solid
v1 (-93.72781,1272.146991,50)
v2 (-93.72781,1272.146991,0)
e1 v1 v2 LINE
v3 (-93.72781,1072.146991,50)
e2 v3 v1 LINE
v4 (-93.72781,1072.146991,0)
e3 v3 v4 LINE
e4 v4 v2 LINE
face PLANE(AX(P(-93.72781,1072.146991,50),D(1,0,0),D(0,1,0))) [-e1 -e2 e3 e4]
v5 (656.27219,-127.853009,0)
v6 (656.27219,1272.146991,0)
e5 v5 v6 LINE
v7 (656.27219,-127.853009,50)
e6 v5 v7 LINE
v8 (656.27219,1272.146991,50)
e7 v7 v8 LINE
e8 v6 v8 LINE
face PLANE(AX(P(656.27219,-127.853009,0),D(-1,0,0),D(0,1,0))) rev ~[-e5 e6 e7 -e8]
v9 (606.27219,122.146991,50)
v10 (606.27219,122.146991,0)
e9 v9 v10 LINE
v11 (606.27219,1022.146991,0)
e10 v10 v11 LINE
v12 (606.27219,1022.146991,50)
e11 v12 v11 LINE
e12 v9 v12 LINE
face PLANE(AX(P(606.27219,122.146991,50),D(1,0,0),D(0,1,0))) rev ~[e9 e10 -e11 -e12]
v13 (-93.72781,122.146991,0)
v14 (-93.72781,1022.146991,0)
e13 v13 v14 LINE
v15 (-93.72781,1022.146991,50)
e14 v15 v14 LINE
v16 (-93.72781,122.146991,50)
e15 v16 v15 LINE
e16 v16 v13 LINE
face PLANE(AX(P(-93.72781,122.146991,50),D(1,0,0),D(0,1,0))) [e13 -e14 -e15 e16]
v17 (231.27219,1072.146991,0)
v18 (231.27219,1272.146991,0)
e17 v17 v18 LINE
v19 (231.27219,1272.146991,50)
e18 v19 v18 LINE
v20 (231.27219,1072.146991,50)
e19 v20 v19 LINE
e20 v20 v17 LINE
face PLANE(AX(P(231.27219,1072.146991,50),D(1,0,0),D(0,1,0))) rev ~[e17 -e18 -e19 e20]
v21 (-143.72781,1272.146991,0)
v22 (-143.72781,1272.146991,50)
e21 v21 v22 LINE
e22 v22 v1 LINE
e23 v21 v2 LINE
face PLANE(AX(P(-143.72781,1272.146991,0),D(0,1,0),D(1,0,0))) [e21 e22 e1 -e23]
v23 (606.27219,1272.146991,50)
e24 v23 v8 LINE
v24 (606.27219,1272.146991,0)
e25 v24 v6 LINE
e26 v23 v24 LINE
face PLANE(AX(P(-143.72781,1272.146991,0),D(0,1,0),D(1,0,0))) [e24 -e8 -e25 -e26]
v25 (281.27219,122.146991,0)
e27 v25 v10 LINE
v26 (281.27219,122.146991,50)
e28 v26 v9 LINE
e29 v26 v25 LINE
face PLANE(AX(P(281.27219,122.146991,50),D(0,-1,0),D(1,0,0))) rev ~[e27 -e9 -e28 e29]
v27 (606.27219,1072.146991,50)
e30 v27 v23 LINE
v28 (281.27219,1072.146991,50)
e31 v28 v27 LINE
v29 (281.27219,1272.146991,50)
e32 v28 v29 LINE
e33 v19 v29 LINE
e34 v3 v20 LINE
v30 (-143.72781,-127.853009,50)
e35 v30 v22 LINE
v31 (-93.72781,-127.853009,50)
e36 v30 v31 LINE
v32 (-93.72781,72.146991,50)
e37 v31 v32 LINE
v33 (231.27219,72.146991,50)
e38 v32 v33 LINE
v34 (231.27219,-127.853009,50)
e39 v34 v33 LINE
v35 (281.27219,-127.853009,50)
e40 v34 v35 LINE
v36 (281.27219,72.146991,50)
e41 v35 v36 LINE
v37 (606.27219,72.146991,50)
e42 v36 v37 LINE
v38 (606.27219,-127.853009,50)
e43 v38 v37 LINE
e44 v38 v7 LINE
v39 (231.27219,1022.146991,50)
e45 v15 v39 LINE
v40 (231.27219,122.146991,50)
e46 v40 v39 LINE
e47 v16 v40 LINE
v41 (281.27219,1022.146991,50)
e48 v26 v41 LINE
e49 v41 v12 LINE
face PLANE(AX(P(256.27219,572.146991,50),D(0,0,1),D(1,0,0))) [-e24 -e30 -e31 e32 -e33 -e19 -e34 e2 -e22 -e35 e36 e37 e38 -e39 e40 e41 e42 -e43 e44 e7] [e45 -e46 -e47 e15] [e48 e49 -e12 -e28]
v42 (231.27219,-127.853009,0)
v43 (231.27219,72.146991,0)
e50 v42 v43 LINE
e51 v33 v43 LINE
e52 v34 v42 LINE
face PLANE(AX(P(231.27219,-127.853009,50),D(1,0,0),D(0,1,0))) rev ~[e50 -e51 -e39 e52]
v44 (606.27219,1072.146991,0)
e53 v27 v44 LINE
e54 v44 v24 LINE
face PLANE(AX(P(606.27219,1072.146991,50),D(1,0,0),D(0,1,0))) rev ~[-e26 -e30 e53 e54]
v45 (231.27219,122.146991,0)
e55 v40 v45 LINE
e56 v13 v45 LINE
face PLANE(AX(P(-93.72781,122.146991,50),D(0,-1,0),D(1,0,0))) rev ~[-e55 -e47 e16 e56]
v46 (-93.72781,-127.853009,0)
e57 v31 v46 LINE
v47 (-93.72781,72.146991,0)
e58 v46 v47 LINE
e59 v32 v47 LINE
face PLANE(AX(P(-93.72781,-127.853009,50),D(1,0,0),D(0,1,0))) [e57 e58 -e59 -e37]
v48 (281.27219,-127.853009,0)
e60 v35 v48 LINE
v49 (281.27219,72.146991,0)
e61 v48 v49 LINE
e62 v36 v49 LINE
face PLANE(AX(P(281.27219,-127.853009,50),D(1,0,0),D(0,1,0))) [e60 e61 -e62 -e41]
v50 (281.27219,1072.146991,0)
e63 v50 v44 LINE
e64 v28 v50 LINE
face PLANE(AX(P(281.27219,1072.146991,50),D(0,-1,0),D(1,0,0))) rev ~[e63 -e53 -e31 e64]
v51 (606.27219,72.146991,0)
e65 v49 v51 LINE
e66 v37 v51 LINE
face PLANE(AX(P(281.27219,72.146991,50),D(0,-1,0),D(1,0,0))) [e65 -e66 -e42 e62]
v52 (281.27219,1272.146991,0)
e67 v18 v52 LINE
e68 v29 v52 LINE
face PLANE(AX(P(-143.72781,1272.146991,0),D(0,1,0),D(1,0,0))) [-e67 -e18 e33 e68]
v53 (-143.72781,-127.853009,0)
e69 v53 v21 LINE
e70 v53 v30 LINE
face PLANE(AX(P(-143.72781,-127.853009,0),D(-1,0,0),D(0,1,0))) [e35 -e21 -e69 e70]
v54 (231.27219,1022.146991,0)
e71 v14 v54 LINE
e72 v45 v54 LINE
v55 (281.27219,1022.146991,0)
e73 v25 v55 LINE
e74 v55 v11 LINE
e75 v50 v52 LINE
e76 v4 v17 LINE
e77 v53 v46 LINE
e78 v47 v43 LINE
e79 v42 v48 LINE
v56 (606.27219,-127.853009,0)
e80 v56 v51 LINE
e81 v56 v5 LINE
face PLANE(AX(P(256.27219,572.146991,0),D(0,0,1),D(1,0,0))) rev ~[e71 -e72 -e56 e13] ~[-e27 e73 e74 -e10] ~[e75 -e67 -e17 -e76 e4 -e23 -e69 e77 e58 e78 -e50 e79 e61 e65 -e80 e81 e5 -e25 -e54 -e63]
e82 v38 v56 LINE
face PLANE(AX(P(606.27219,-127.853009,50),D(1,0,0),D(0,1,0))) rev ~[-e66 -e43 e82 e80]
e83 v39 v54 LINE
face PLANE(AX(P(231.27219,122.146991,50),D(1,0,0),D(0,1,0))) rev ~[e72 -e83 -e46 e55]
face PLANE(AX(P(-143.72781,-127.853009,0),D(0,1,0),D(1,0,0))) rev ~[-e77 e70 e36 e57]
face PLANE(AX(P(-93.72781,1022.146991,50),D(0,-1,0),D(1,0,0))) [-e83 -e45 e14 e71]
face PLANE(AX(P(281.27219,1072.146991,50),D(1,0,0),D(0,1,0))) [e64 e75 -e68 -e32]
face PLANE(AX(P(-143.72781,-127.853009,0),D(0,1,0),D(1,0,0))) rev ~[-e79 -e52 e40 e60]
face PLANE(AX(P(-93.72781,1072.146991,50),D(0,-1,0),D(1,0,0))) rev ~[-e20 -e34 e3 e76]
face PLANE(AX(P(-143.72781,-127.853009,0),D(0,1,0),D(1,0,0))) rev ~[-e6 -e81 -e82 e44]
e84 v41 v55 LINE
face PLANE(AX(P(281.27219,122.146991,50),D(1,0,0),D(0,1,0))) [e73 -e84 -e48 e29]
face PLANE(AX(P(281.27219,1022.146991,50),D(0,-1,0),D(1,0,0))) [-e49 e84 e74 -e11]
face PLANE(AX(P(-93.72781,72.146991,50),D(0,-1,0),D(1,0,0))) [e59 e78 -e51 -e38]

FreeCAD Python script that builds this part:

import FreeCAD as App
import Part
import Sketcher

V = App.Vector

doc = App.newDocument("Part")
body = doc.addObject("PartDesign::Body", "Body")

# Sketch on XY plane
sketch1 = body.newObject("Sketcher::SketchObject", "Sketch")
sketch1.AttachmentSupport = (doc.getObject("XY_Plane"), [""])
sketch1.MapMode = "FlatFace"
sketch1.addGeometry(Part.LineSegment(V(-144, 1272, 0), V(-144, -128, 0)), False)
sketch1.addGeometry(Part.LineSegment(V(-144, -128, 0), V(656, -128, 0)), False)
sketch1.addGeometry(Part.LineSegment(V(656, -128, 0), V(656, 1272, 0)), False)
sketch1.addGeometry(Part.LineSegment(V(656, 1272, 0), V(-144, 1272, 0)), False)
sketch1.addConstraint(Sketcher.Constraint("Coincident", 0, 2, 1, 1))
sketch1.addConstraint(Sketcher.Constraint("Coincident", 1, 2, 2, 1))
sketch1.addConstraint(Sketcher.Constraint("Coincident", 2, 2, 3, 1))
sketch1.addConstraint(Sketcher.Constraint("Coincident", 3, 2, 0, 1))
sketch1.addConstraint(Sketcher.Constraint("Vertical", 0))
sketch1.addConstraint(Sketcher.Constraint("Horizontal", 1))
sketch1.addConstraint(Sketcher.Constraint("Vertical", 2))
sketch1.addConstraint(Sketcher.Constraint("Horizontal", 3))
sketch1.addConstraint(Sketcher.Constraint("DistanceX", 1, 1, 1, 2, 800.0))
sketch1.addConstraint(Sketcher.Constraint("DistanceY", 0, 2, 0, 1, 1400.0))
sketch1.addConstraint(Sketcher.Constraint("DistanceX", 0, 2, -1, 1, 143.72781))
sketch1.addConstraint(Sketcher.Constraint("DistanceY", 0, 2, -1, 1, 127.853009))
pad1 = body.newObject("PartDesign::Pad", "Pad")
pad1.Profile = sketch1
pad1.Length = 50

# Sketch on XY plane
sketch2 = body.newObject("Sketcher::SketchObject", "Sketch001")
sketch2.AttachmentSupport = (doc.getObject("XY_Plane"), [""])
sketch2.MapMode = "FlatFace"
sketch2.AttachmentOffset = App.Placement(V(0, 0, 50), App.Rotation())
sketch2.addGeometry(Part.LineSegment(V(-94, 1272, 0), V(-94, 1072, 0)), False)
sketch2.addGeometry(Part.LineSegment(V(-94, 1072, 0), V(231, 1072, 0)), False)
sketch2.addGeometry(Part.LineSegment(V(231, 1072, 0), V(231, 1272, 0)), False)
sketch2.addGeometry(Part.LineSegment(V(231, 1272, 0), V(-94, 1272, 0)), False)
sketch2.addGeometry(Part.LineSegment(V(-94, 72, 0), V(-94, -128, 0)), False)
sketch2.addGeometry(Part.LineSegment(V(-94, -128, 0), V(231, -128, 0)), False)
sketch2.addGeometry(Part.LineSegment(V(231, -128, 0), V(231, 72, 0)), False)
sketch2.addGeometry(Part.LineSegment(V(231, 72, 0), V(-94, 72, 0)), False)
sketch2.addGeometry(Part.LineSegment(V(-94, 1022, 0), V(-94, 122, 0)), False)
sketch2.addGeometry(Part.LineSegment(V(-94, 122, 0), V(231, 122, 0)), False)
sketch2.addGeometry(Part.LineSegment(V(231, 122, 0), V(231, 1022, 0)), False)
sketch2.addGeometry(Part.LineSegment(V(231, 1022, 0), V(-94, 1022, 0)), False)
sketch2.addGeometry(Part.LineSegment(V(281, 1272, 0), V(281, 1072, 0)), False)
sketch2.addGeometry(Part.LineSegment(V(281, 1072, 0), V(606, 1072, 0)), False)
sketch2.addGeometry(Part.LineSegment(V(606, 1072, 0), V(606, 1272, 0)), False)
sketch2.addGeometry(Part.LineSegment(V(606, 1272, 0), V(281, 1272, 0)), False)
sketch2.addGeometry(Part.LineSegment(V(281, 1022, 0), V(281, 122, 0)), False)
sketch2.addGeometry(Part.LineSegment(V(281, 122, 0), V(606, 122, 0)), False)
sketch2.addGeometry(Part.LineSegment(V(606, 122, 0), V(606, 1022, 0)), False)
sketch2.addGeometry(Part.LineSegment(V(606, 1022, 0), V(281, 1022, 0)), False)
sketch2.addGeometry(Part.LineSegment(V(281, 72, 0), V(281, -128, 0)), False)
sketch2.addGeometry(Part.LineSegment(V(281, -128, 0), V(606, -128, 0)), False)
sketch2.addGeometry(Part.LineSegment(V(606, -128, 0), V(606, 72, 0)), False)
sketch2.addGeometry(Part.LineSegment(V(606, 72, 0), V(281, 72, 0)), False)
sketch2.addConstraint(Sketcher.Constraint("Coincident", 0, 2, 1, 1))
sketch2.addConstraint(Sketcher.Constraint("Coincident", 1, 2, 2, 1))
sketch2.addConstraint(Sketcher.Constraint("Coincident", 2, 2, 3, 1))
sketch2.addConstraint(Sketcher.Constraint("Coincident", 3, 2, 0, 1))
sketch2.addConstraint(Sketcher.Constraint("Coincident", 4, 2, 5, 1))
sketch2.addConstraint(Sketcher.Constraint("Coincident", 5, 2, 6, 1))
sketch2.addConstraint(Sketcher.Constraint("Coincident", 6, 2, 7, 1))
sketch2.addConstraint(Sketcher.Constraint("Coincident", 7, 2, 4, 1))
sketch2.addConstraint(Sketcher.Constraint("Coincident", 8, 2, 9, 1))
sketch2.addConstraint(Sketcher.Constraint("Coincident", 9, 2, 10, 1))
sketch2.addConstraint(Sketcher.Constraint("Coincident", 10, 2, 11, 1))
sketch2.addConstraint(Sketcher.Constraint("Coincident", 11, 2, 8, 1))
sketch2.addConstraint(Sketcher.Constraint("Coincident", 12, 2, 13, 1))
sketch2.addConstraint(Sketcher.Constraint("Coincident", 13, 2, 14, 1))
sketch2.addConstraint(Sketcher.Constraint("Coincident", 14, 2, 15, 1))
sketch2.addConstraint(Sketcher.Constraint("Coincident", 15, 2, 12, 1))
sketch2.addConstraint(Sketcher.Constraint("Coincident", 16, 2, 17, 1))
sketch2.addConstraint(Sketcher.Constraint("Coincident", 17, 2, 18, 1))
sketch2.addConstraint(Sketcher.Constraint("Coincident", 18, 2, 19, 1))
sketch2.addConstraint(Sketcher.Constraint("Coincident", 19, 2, 16, 1))
sketch2.addConstraint(Sketcher.Constraint("Coincident", 20, 2, 21, 1))
sketch2.addConstraint(Sketcher.Constraint("Coincident", 21, 2, 22, 1))
sketch2.addConstraint(Sketcher.Constraint("Coincident", 22, 2, 23, 1))
sketch2.addConstraint(Sketcher.Constraint("Coincident", 23, 2, 20, 1))
sketch2.addConstraint(Sketcher.Constraint("Vertical", 0))
sketch2.addConstraint(Sketcher.Constraint("Horizontal", 1))
sketch2.addConstraint(Sketcher.Constraint("Vertical", 2))
sketch2.addConstraint(Sketcher.Constraint("Horizontal", 3))
sketch2.addConstraint(Sketcher.Constraint("Vertical", 4))
sketch2.addConstraint(Sketcher.Constraint("Horizontal", 5))
sketch2.addConstraint(Sketcher.Constraint("Vertical", 6))
sketch2.addConstraint(Sketcher.Constraint("Horizontal", 7))
sketch2.addConstraint(Sketcher.Constraint("Vertical", 8))
sketch2.addConstraint(Sketcher.Constraint("Horizontal", 9))
sketch2.addConstraint(Sketcher.Constraint("Vertical", 10))
sketch2.addConstraint(Sketcher.Constraint("Horizontal", 11))
sketch2.addConstraint(Sketcher.Constraint("Vertical", 12))
sketch2.addConstraint(Sketcher.Constraint("Horizontal", 13))
sketch2.addConstraint(Sketcher.Constraint("Vertical", 14))
sketch2.addConstraint(Sketcher.Constraint("Horizontal", 15))
sketch2.addConstraint(Sketcher.Constraint("Vertical", 16))
sketch2.addConstraint(Sketcher.Constraint("Horizontal", 17))
sketch2.addConstraint(Sketcher.Constraint("Vertical", 18))
sketch2.addConstraint(Sketcher.Constraint("Horizontal", 19))
sketch2.addConstraint(Sketcher.Constraint("Vertical", 20))
sketch2.addConstraint(Sketcher.Constraint("Horizontal", 21))
sketch2.addConstraint(Sketcher.Constraint("Vertical", 22))
sketch2.addConstraint(Sketcher.Constraint("Horizontal", 23))
sketch2.addConstraint(Sketcher.Constraint("Horizontal", 1, 2, 12, 2))
sketch2.addConstraint(Sketcher.Constraint("Horizontal", 3, 2, 14, 2))
sketch2.addConstraint(Sketcher.Constraint("Horizontal", 9, 2, 16, 2))
sketch2.addConstraint(Sketcher.Constraint("Horizontal", 11, 2, 18, 2))
sketch2.addConstraint(Sketcher.Constraint("Horizontal", 5, 2, 20, 2))
sketch2.addConstraint(Sketcher.Constraint("Horizontal", 7, 2, 22, 2))
sketch2.addConstraint(Sketcher.Constraint("Vertical", 3, 2, 4, 2))
sketch2.addConstraint(Sketcher.Constraint("Vertical", 2, 2, 5, 2))
sketch2.addConstraint(Sketcher.Constraint("Vertical", 7, 2, 8, 2))
sketch2.addConstraint(Sketcher.Constraint("Vertical", 6, 2, 9, 2))
sketch2.addConstraint(Sketcher.Constraint("Vertical", 15, 2, 16, 2))
sketch2.addConstraint(Sketcher.Constraint("Vertical", 14, 2, 17, 2))
sketch2.addConstraint(Sketcher.Constraint("Vertical", 19, 2, 20, 2))
sketch2.addConstraint(Sketcher.Constraint("Vertical", 18, 2, 21, 2))
sketch2.addConstraint(Sketcher.Constraint("Equal", 11, 13))
sketch2.addConstraint(Sketcher.Constraint("Equal", 2, 4))
sketch2.addConstraint(Sketcher.Constraint("DistanceX", 1, 1, 1, 2, 325.0))
sketch2.addConstraint(Sketcher.Constraint("DistanceY", 0, 2, 0, 1, 200.0))
sketch2.addConstraint(Sketcher.Constraint("DistanceY", 8, 2, 8, 1, 900.0))
sketch2.addConstraint(Sketcher.Constraint("DistanceY", 4, 2, 0, 2, 1200.0))
sketch2.addConstraint(Sketcher.Constraint("DistanceY", 7, 2, 8, 2, 50.0))
sketch2.addConstraint(Sketcher.Constraint("DistanceX", 1, 2, 12, 2, 50.0))
sketch2.addConstraint(Sketcher.Constraint("DistanceX", 0, 2, -1, 1, 93.72781))
sketch2.addConstraint(Sketcher.Constraint("DistanceY", -1, 1, 0, 2, 1072.146991))
pocket1 = body.newObject("PartDesign::Pocket", "Pocket")
pocket1.Profile = sketch2
pocket1.Length = 50

doc.recompute()
